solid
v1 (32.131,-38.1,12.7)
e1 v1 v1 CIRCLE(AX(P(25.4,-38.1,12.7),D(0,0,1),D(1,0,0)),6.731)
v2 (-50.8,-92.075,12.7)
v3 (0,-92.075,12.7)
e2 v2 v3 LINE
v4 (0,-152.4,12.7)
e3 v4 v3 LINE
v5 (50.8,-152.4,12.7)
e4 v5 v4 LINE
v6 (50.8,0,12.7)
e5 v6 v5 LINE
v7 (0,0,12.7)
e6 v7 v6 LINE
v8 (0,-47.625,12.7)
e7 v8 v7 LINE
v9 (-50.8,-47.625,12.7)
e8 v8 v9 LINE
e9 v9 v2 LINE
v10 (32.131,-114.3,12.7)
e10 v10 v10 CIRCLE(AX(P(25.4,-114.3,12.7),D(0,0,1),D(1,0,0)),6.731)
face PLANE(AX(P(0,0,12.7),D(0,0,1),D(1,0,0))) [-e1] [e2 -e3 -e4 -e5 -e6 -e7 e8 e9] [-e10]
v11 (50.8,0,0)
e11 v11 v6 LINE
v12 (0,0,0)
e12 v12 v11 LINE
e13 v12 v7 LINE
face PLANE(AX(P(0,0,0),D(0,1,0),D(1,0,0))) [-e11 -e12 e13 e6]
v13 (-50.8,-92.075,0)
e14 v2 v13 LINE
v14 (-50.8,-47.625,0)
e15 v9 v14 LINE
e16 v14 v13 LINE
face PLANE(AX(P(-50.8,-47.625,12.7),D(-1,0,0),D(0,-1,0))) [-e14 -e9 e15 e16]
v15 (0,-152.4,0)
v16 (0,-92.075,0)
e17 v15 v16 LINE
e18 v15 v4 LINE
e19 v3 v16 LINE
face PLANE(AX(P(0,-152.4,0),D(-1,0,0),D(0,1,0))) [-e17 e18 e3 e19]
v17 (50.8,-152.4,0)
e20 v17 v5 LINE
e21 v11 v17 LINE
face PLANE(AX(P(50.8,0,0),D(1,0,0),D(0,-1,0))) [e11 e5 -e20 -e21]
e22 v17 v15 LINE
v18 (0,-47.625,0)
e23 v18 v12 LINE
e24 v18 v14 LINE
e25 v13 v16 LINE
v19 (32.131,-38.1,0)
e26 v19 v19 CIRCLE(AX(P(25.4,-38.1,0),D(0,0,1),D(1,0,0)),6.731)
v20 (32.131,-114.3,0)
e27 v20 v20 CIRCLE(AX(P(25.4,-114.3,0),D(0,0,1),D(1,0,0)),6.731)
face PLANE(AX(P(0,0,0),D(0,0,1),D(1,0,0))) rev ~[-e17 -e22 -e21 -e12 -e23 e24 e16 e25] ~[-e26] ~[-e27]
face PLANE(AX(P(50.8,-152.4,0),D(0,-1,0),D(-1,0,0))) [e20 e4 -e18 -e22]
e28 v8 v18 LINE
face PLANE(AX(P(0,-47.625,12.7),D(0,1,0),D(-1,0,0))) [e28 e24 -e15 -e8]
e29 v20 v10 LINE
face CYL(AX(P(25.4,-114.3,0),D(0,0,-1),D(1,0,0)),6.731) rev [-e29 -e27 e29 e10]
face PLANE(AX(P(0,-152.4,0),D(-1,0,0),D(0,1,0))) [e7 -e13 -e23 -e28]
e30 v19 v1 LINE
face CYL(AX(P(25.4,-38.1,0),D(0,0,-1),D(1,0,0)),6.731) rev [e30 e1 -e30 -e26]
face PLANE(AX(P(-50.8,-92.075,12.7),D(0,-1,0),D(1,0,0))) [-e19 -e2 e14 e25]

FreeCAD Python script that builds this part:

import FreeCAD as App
import Part
import Sketcher
Q = App.Units.Quantity


def add_polygon(sketch, points):
    """Adds a closed chain of lines whose ends are joined by coincident constraints."""
    first, n = sketch.GeometryCount, len(points)
    for a, b in zip(points, points[1:] + points[:1]):
        sketch.addGeometry(Part.LineSegment(App.Vector(*a, 0), App.Vector(*b, 0)), False)
    for i in range(n):
        sketch.addConstraint(Sketcher.Constraint("Coincident", first + i, 2, first + (i + 1) % n, 1))

doc = App.newDocument("Part")
body = doc.addObject("PartDesign::Body", "Body")

# Sketch on XY plane
sketch1 = body.newObject("Sketcher::SketchObject", "Sketch")
sketch1.AttachmentSupport = (doc.getObject("XY_Plane"), [""])
sketch1.MapMode = "FlatFace"
add_polygon(sketch1, [(50.8, 0), (0, 0), (0, -152.4), (50.8, -152.4)])  # lines 0-3
sketch1.addGeometry(Part.Circle(App.Vector(25.4, -114.3, 0), App.Vector(0, 0, 1), 6.731), False)  # 4
sketch1.addGeometry(Part.Circle(App.Vector(25.4, -38.1, 0), App.Vector(0, 0, 1), 6.731), False)  # 5
sketch1.addConstraint(Sketcher.Constraint("Horizontal", 0))
sketch1.addConstraint(Sketcher.Constraint("Vertical", 1))
sketch1.addConstraint(Sketcher.Constraint("Horizontal", 2))
sketch1.addConstraint(Sketcher.Constraint("Vertical", 3))
sketch1.addConstraint(Sketcher.Constraint("Coincident", 0, 2, -1, 1))
sketch1.addConstraint(Sketcher.Constraint("Equal", 4, 5))
sketch1.addConstraint(Sketcher.Constraint("Vertical", 4, 3, 5, 3))
sketch1.addConstraint(Sketcher.Constraint("Diameter", 4, Q("0.53 in")))
sketch1.addConstraint(Sketcher.Constraint("DistanceX", 0, 2, 0, 1, Q("2 in")))
sketch1.addConstraint(Sketcher.Constraint("DistanceY", 1, 2, 1, 1, Q("6 in")))
sketch1.addConstraint(Sketcher.Constraint("DistanceX", -1, 1, 4, 3, Q("1 in")))
sketch1.addConstraint(Sketcher.Constraint("DistanceY", 5, 3, -1, 1, Q("1.5 in")))
sketch1.addConstraint(Sketcher.Constraint("DistanceY", 1, 2, 4, 3, Q("1.5 in")))
pad1 = body.newObject("PartDesign::Pad", "Pad")
pad1.Profile = sketch1
pad1.Length = Q("0.5 in")

# Sketch on XY plane
sketch2 = body.newObject("Sketcher::SketchObject", "Sketch001")
sketch2.AttachmentSupport = (doc.getObject("XY_Plane"), [""])
sketch2.MapMode = "FlatFace"
sketch2.AttachmentOffset = App.Placement(App.Vector(0, 0, 0.5 * 25.4), App.Rotation())
add_polygon(sketch2, [(0, -92.075), (0, -47.625), (-50.8, -47.625), (-50.8, -92.075)])  # lines 0-3
sketch2.addConstraint(Sketcher.Constraint("Vertical", 0))
sketch2.addConstraint(Sketcher.Constraint("Horizontal", 1))
sketch2.addConstraint(Sketcher.Constraint("Vertical", 2))
sketch2.addConstraint(Sketcher.Constraint("Horizontal", 3))
sketch2.addConstraint(Sketcher.Constraint("PointOnObject", 0, 2, -2))
sketch2.addConstraint(Sketcher.Constraint("DistanceX", 1, 2, 1, 1, Q("2 in")))
sketch2.addConstraint(Sketcher.Constraint("DistanceY", 0, 1, 0, 2, Q("1.75 in")))
sketch2.addConstraint(Sketcher.Constraint("DistanceY", 0, 2, -1, 1, Q("1.875 in")))
pad2 = body.newObject("PartDesign::Pad", "Pad001")
pad2.Profile = sketch2
pad2.Length = Q("0.5 in")
pad2.Reversed = True

doc.recompute()
